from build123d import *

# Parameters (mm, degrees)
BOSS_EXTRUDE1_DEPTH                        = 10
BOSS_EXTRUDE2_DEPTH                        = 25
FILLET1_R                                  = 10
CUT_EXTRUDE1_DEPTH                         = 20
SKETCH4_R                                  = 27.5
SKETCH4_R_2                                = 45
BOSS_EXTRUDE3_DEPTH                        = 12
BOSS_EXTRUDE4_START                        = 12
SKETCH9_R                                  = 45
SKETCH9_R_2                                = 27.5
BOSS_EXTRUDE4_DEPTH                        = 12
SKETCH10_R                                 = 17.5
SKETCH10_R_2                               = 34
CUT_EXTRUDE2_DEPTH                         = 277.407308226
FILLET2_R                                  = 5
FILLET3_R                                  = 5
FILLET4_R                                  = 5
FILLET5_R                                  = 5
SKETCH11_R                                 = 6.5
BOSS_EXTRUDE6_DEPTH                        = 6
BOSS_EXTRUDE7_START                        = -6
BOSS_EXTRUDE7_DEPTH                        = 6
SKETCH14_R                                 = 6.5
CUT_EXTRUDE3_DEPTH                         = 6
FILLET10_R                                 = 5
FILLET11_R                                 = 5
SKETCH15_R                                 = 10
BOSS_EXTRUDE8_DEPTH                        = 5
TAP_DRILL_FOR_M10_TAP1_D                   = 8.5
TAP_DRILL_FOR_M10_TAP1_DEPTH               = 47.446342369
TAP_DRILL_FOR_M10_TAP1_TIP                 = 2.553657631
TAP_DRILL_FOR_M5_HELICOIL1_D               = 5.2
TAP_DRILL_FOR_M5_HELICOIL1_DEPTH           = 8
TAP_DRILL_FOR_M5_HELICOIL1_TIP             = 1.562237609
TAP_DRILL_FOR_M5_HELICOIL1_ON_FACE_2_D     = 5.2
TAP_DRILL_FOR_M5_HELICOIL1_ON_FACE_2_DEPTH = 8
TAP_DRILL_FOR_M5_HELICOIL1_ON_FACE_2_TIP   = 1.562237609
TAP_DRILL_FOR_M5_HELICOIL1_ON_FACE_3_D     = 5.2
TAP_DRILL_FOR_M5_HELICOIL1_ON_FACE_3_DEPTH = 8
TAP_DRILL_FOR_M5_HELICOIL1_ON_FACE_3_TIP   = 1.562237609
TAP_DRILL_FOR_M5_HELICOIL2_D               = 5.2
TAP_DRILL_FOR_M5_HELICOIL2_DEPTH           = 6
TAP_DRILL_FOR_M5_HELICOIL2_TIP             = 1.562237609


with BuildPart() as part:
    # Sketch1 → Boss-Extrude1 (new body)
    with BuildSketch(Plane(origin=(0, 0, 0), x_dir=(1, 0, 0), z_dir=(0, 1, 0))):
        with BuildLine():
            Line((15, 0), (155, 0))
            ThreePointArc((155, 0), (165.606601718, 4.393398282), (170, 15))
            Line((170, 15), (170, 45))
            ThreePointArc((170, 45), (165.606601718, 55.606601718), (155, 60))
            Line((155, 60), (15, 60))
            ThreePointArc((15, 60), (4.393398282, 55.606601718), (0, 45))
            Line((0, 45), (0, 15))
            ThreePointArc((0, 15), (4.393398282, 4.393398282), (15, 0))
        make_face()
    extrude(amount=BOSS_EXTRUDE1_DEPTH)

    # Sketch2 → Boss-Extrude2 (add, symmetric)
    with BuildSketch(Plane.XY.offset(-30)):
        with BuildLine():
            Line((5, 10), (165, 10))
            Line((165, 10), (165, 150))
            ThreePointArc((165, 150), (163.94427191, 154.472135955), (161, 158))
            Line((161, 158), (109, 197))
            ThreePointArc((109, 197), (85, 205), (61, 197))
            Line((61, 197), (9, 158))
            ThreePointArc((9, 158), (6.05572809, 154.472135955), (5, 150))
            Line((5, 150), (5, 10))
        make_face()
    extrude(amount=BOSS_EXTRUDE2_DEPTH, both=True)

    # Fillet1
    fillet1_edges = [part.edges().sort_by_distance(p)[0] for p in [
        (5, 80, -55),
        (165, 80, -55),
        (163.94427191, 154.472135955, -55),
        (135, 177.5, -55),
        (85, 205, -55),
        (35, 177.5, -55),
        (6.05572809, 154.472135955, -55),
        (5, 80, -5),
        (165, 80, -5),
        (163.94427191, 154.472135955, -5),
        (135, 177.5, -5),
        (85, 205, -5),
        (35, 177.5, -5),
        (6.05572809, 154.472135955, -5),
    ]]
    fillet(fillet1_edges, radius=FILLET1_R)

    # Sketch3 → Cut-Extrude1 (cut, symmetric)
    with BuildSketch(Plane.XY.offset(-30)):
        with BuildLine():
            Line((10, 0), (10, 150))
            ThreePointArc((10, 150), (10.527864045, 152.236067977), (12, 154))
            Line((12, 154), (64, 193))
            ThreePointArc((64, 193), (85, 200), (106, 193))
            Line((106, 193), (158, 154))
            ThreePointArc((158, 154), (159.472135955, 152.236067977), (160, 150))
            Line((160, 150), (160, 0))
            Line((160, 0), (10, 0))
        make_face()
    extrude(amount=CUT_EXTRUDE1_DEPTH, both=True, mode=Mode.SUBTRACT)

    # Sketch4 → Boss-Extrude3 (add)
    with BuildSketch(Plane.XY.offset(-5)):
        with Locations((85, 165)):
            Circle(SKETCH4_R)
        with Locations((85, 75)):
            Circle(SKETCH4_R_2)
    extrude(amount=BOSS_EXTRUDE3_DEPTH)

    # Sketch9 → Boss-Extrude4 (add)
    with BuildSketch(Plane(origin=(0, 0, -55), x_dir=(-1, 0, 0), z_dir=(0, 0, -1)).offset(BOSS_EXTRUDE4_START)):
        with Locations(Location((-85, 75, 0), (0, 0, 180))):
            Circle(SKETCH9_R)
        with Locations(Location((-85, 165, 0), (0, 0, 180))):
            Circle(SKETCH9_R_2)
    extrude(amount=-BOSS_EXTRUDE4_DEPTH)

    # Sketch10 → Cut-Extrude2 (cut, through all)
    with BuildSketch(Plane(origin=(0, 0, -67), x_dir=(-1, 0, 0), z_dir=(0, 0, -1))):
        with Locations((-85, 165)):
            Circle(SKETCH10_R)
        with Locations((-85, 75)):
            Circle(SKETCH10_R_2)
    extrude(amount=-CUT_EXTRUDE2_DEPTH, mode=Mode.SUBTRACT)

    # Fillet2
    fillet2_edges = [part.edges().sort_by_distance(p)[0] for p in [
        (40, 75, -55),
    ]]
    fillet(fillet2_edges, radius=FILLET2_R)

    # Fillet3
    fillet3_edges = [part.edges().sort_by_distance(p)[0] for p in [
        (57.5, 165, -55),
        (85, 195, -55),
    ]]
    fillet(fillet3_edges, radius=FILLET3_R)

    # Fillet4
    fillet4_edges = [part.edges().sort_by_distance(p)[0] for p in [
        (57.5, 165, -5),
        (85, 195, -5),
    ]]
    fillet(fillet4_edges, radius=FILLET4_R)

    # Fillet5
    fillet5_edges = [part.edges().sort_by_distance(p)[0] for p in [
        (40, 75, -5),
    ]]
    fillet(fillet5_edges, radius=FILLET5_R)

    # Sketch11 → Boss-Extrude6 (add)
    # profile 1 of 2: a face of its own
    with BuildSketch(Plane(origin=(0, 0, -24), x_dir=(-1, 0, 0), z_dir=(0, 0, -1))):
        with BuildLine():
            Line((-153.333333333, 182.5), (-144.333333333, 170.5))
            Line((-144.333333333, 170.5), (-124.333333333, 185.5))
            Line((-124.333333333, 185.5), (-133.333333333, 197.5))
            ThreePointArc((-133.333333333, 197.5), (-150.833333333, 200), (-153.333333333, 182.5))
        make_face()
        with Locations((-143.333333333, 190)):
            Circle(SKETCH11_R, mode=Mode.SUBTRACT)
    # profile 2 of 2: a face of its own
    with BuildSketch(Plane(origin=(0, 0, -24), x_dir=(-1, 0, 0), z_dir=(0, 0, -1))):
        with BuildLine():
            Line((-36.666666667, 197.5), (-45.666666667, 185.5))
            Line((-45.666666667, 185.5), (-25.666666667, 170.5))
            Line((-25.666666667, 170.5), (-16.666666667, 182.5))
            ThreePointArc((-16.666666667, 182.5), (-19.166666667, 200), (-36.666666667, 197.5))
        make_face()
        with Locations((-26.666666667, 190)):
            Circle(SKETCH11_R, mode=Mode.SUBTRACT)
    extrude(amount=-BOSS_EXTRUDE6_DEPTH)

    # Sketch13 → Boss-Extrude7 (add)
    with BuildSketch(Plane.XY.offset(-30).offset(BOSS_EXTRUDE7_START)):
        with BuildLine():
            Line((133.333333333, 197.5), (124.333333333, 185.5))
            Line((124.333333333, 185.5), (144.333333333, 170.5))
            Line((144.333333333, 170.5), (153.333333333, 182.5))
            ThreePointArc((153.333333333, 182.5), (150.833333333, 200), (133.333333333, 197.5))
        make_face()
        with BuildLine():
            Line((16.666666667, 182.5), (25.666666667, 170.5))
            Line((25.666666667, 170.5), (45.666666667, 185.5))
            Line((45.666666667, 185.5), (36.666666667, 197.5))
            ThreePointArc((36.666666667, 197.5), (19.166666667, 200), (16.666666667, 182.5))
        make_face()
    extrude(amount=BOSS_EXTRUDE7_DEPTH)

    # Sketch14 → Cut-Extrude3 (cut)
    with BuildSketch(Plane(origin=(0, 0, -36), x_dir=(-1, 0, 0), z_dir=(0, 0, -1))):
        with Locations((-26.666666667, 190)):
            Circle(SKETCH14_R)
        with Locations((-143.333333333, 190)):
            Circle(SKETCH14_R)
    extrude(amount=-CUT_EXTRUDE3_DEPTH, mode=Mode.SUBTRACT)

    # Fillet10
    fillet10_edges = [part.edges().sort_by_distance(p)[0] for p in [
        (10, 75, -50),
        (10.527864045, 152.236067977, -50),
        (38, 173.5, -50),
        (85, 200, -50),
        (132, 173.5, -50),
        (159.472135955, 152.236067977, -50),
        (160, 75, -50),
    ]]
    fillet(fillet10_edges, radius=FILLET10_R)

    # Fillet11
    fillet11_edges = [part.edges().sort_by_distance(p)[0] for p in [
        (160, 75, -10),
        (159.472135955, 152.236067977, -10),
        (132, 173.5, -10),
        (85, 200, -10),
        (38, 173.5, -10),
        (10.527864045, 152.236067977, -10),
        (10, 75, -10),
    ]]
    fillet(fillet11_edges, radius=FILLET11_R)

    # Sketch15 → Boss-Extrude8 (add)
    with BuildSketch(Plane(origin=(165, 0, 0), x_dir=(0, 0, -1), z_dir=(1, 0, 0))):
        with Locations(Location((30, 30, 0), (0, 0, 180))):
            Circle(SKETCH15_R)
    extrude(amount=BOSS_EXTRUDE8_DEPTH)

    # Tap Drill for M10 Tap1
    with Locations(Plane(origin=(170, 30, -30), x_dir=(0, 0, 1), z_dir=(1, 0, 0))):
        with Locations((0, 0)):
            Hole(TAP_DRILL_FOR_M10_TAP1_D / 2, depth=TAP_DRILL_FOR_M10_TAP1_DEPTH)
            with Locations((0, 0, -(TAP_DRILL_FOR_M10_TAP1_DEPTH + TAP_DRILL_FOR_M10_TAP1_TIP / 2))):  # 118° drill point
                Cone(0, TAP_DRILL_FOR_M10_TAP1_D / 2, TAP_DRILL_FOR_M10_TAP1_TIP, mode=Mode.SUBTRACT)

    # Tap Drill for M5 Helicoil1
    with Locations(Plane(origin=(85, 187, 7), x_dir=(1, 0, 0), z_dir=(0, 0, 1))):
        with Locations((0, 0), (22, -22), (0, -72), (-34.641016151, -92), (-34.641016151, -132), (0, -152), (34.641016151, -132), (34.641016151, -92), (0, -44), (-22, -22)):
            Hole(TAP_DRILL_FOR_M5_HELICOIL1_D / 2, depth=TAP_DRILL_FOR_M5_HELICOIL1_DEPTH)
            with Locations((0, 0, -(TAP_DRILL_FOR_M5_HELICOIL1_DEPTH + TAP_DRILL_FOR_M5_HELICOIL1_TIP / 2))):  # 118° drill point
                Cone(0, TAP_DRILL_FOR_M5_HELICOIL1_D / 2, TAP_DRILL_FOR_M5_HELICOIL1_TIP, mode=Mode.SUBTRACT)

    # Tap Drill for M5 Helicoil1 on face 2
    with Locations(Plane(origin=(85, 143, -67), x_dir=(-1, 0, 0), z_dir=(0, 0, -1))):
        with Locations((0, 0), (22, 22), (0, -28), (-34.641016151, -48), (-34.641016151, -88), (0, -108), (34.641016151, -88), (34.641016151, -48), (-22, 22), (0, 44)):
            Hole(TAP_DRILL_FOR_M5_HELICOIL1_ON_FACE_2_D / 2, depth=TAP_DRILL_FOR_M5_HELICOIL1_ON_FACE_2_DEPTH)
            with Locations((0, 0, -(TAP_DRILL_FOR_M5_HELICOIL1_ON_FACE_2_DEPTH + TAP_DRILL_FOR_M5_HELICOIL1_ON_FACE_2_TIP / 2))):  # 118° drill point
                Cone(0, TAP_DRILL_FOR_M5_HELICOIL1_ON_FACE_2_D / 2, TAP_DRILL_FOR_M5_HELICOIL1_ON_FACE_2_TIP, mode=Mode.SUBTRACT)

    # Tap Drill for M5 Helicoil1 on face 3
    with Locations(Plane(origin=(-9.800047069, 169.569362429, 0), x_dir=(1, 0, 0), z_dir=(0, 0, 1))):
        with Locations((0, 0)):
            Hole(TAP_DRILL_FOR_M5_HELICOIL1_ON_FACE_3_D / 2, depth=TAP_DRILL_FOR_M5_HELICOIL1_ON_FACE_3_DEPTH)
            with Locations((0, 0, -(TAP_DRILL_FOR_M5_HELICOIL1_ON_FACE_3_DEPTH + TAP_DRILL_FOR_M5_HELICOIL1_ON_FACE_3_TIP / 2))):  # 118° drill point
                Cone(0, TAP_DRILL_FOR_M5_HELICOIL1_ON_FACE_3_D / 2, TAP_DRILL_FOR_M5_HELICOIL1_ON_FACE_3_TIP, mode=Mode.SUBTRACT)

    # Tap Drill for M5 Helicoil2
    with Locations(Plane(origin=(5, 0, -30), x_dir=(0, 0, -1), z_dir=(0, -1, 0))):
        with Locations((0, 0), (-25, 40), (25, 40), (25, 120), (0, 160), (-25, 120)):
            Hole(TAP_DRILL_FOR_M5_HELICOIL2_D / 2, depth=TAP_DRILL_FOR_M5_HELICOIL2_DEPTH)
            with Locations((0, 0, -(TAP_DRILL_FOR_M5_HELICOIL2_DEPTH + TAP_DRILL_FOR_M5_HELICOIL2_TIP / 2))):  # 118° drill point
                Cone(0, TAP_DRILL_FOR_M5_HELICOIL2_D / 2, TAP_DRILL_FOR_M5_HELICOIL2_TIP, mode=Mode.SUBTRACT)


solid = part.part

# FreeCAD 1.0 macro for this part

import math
import FreeCAD as App
import Part
import Sketcher

V = App.Vector


def edges_at(feature, points):
    """Names of the edges that pass closest to the given points."""
    edges = feature.Shape.Edges
    near = lambda p: min(range(len(edges)), key=lambda i: edges[i].distToShape(Part.Vertex(*p))[0])
    return sorted({f"Edge{near(p) + 1}" for p in points})

doc = App.newDocument("Part")
body = doc.addObject("PartDesign::Body", "Body")

# Sketch on XZ plane
sketch1 = body.newObject("Sketcher::SketchObject", "Sketch")
sketch1.AttachmentSupport = (doc.getObject("XZ_Plane"), [""])
sketch1.MapMode = "FlatFace"
sketch1.addGeometry([
    Part.LineSegment(V(15, 0, 0), V(155, 0, 0)),  # 0
    Part.ArcOfCircle(Part.Circle(V(155, -15, 0), V(0, 0, 1), 15), math.radians(0), math.radians(90)),  # 1
    Part.LineSegment(V(170, -15, 0), V(170, -45, 0)),  # 2
    Part.ArcOfCircle(Part.Circle(V(155, -45, 0), V(0, 0, 1), 15), math.radians(-90), math.radians(0)),  # 3
    Part.LineSegment(V(155, -60, 0), V(15, -60, 0)),  # 4
    Part.ArcOfCircle(Part.Circle(V(15, -45, 0), V(0, 0, 1), 15), math.radians(180), math.radians(270)),  # 5
    Part.LineSegment(V(0, -45, 0), V(0, -15, 0)),  # 6
    Part.ArcOfCircle(Part.Circle(V(15, -15, 0), V(0, 0, 1), 15), math.radians(90), math.radians(180)),  # 7
], False)
sketch1.addConstraint([
    Sketcher.Constraint("Tangent", 0, 2, 1, 2),
    Sketcher.Constraint("Tangent", 1, 1, 2, 1),
    Sketcher.Constraint("Tangent", 2, 2, 3, 2),
    Sketcher.Constraint("Tangent", 3, 1, 4, 1),
    Sketcher.Constraint("Tangent", 4, 2, 5, 2),
    Sketcher.Constraint("Tangent", 5, 1, 6, 1),
    Sketcher.Constraint("Tangent", 6, 2, 7, 2),
    Sketcher.Constraint("Tangent", 7, 1, 0, 1),
    Sketcher.Constraint("Horizontal", 0),
    Sketcher.Constraint("Vertical", 2),
    Sketcher.Constraint("Horizontal", 4),
    Sketcher.Constraint("Vertical", 6),
    Sketcher.Constraint("Equal", 1, 3),
    Sketcher.Constraint("Equal", 3, 5),
    Sketcher.Constraint("Equal", 5, 7),
    Sketcher.Constraint("PointOnObject", 0, 2, -1),
    Sketcher.Constraint("PointOnObject", 5, 1, -2),
    Sketcher.Constraint("Radius", 1, 15.0),
    Sketcher.Constraint("DistanceX", 0, 1, 0, 2, 140.0),
    Sketcher.Constraint("DistanceY", 2, 2, 2, 1, 30.0),
])
pad1 = body.newObject("PartDesign::Pad", "Pad")
pad1.Profile = sketch1
pad1.Length = 10
pad1.Reversed = True

# Sketch on XY plane
sketch2 = body.newObject("Sketcher::SketchObject", "Sketch001")
sketch2.AttachmentSupport = (doc.getObject("XY_Plane"), [""])
sketch2.MapMode = "FlatFace"
sketch2.AttachmentOffset = App.Placement(V(0, 0, -30), App.Rotation())
sketch2.addGeometry([
    Part.LineSegment(V(5, 10, 0), V(165, 10, 0)),  # 0
    Part.LineSegment(V(165, 10, 0), V(165, 150, 0)),  # 1
    Part.ArcOfCircle(Part.Circle(V(155, 150, 0), V(0, 0, 1), 10), math.radians(0), math.radians(53.130102)),  # 2
    Part.LineSegment(V(161, 158, 0), V(109, 197, 0)),  # 3
    Part.ArcOfCircle(Part.Circle(V(85, 165, 0), V(0, 0, 1), 40), math.radians(53.130102), math.radians(126.869898)),  # 4
    Part.LineSegment(V(61, 197, 0), V(9, 158, 0)),  # 5
    Part.ArcOfCircle(Part.Circle(V(15, 150, 0), V(0, 0, 1), 10), math.radians(126.869898), math.radians(180)),  # 6
    Part.LineSegment(V(5, 150, 0), V(5, 10, 0)),  # 7
], False)
sketch2.addConstraint([
    Sketcher.Constraint("Coincident", 0, 2, 1, 1),
    Sketcher.Constraint("Tangent", 1, 2, 2, 1),
    Sketcher.Constraint("Tangent", 2, 2, 3, 1),
    Sketcher.Constraint("Tangent", 3, 2, 4, 1),
    Sketcher.Constraint("Tangent", 4, 2, 5, 1),
    Sketcher.Constraint("Tangent", 5, 2, 6, 1),
    Sketcher.Constraint("Tangent", 6, 2, 7, 1),
    Sketcher.Constraint("Coincident", 7, 2, 0, 1),
    Sketcher.Constraint("Horizontal", 0),
    Sketcher.Constraint("Vertical", 1),
    Sketcher.Constraint("Vertical", 7),
    Sketcher.Constraint("Equal", 2, 6),
    Sketcher.Constraint("Horizontal", 2, 3, 6, 3),
    Sketcher.Constraint("Horizontal", 3, 2, 4, 2),
    Sketcher.Constraint("Radius", 2, 10.0),
    Sketcher.Constraint("Radius", 4, 40.0),
    Sketcher.Constraint("DistanceX", 0, 1, 0, 2, 160.0),
    Sketcher.Constraint("DistanceY", 1, 1, 1, 2, 140.0),
    Sketcher.Constraint("Distance", 3, 65.0),
    Sketcher.Constraint("DistanceX", -1, 1, 2, 3, 155.0),
    Sketcher.Constraint("DistanceY", -1, 1, 2, 3, 150.0),
])
pad2 = body.newObject("PartDesign::Pad", "Pad001")
pad2.Profile = sketch2
pad2.Length = 50
pad2.Midplane = True
doc.recompute()

fillet = body.newObject("PartDesign::Fillet", "Fillet")
fillet.Base = (pad2, edges_at(pad2, [
    (5, 80, -55),
    (165, 80, -55),
    (163.944, 154.472, -55),
    (135, 177.5, -55),
    (85, 205, -55),
    (35, 177.5, -55),
    (6.056, 154.472, -55),
    (5, 80, -5),
    (165, 80, -5),
    (163.944, 154.472, -5),
    (135, 177.5, -5),
    (85, 205, -5),
    (35, 177.5, -5),
    (6.056, 154.472, -5),
]))
fillet.Radius = 10

# Sketch on XY plane
sketch3 = body.newObject("Sketcher::SketchObject", "Sketch002")
sketch3.AttachmentSupport = (doc.getObject("XY_Plane"), [""])
sketch3.MapMode = "FlatFace"
sketch3.AttachmentOffset = App.Placement(V(0, 0, -30), App.Rotation())
sketch3.addGeometry([
    Part.LineSegment(V(10, 150, 0), V(10, 0, 0)),  # 0
    Part.LineSegment(V(10, 0, 0), V(160, 0, 0)),  # 1
    Part.LineSegment(V(160, 0, 0), V(160, 150, 0)),  # 2
    Part.ArcOfCircle(Part.Circle(V(155, 150, 0), V(0, 0, 1), 5), math.radians(0), math.radians(53.130102)),  # 3
    Part.LineSegment(V(158, 154, 0), V(106, 193, 0)),  # 4
    Part.ArcOfCircle(Part.Circle(V(85, 165, 0), V(0, 0, 1), 35), math.radians(53.130102), math.radians(126.869898)),  # 5
    Part.LineSegment(V(64, 193, 0), V(12, 154, 0)),  # 6
    Part.ArcOfCircle(Part.Circle(V(15, 150, 0), V(0, 0, 1), 5), math.radians(126.869898), math.radians(180)),  # 7
], False)
sketch3.addConstraint([
    Sketcher.Constraint("Coincident", 0, 2, 1, 1),
    Sketcher.Constraint("Coincident", 1, 2, 2, 1),
    Sketcher.Constraint("Tangent", 2, 2, 3, 1),
    Sketcher.Constraint("Tangent", 3, 2, 4, 1),
    Sketcher.Constraint("Tangent", 4, 2, 5, 1),
    Sketcher.Constraint("Tangent", 5, 2, 6, 1),
    Sketcher.Constraint("Tangent", 6, 2, 7, 1),
    Sketcher.Constraint("Tangent", 7, 2, 0, 1),
    Sketcher.Constraint("Vertical", 0),
    Sketcher.Constraint("Horizontal", 1),
    Sketcher.Constraint("Vertical", 2),
    Sketcher.Constraint("Equal", 3, 7),
    Sketcher.Constraint("PointOnObject", 0, 2, -1),
    Sketcher.Constraint("Horizontal", 3, 3, 7, 3),
    Sketcher.Constraint("Horizontal", 4, 2, 5, 2),
    Sketcher.Constraint("Equal", 1, 0),
    Sketcher.Constraint("Radius", 3, 5.0),
    Sketcher.Constraint("Radius", 5, 35.0),
    Sketcher.Constraint("DistanceX", 1, 1, 1, 2, 150.0),
    Sketcher.Constraint("Distance", 4, 65.0),
    Sketcher.Constraint("DistanceX", -1, 1, 3, 3, 155.0),
])
pocket1 = body.newObject("PartDesign::Pocket", "Pocket")
pocket1.Profile = sketch3
pocket1.Length = 40
pocket1.Midplane = True

# Sketch on XY plane
sketch4 = body.newObject("Sketcher::SketchObject", "Sketch003")
sketch4.AttachmentSupport = (doc.getObject("XY_Plane"), [""])
sketch4.MapMode = "FlatFace"
sketch4.AttachmentOffset = App.Placement(V(0, 0, -5), App.Rotation())
sketch4.addGeometry([
    Part.Circle(V(85, 165, 0), V(0, 0, 1), 27.5),
    Part.Circle(V(85, 75, 0), V(0, 0, 1), 45),
], False)
sketch4.addConstraint([
    Sketcher.Constraint("Vertical", 0, 3, 1, 3),
    Sketcher.Constraint("Diameter", 0, 55.0),
    Sketcher.Constraint("Diameter", 1, 90.0),
    Sketcher.Constraint("DistanceX", -1, 1, 0, 3, 85.0),
    Sketcher.Constraint("DistanceY", -1, 1, 0, 3, 165.0),
    Sketcher.Constraint("DistanceY", -1, 1, 1, 3, 75.0),
])
pad3 = body.newObject("PartDesign::Pad", "Pad002")
pad3.Profile = sketch4
pad3.Length = 12

# Sketch on XY plane
sketch5 = body.newObject("Sketcher::SketchObject", "Sketch004")
sketch5.AttachmentSupport = (doc.getObject("XY_Plane"), [""])
sketch5.MapMode = "FlatFace"
sketch5.AttachmentOffset = App.Placement(V(0, 0, -67), App.Rotation())
sketch5.addGeometry([
    Part.Circle(V(85, 75, 0), V(0, 0, 1), 45),
    Part.Circle(V(85, 165, 0), V(0, 0, 1), 27.5),
], False)
sketch5.addConstraint([
    Sketcher.Constraint("Vertical", 0, 3, 1, 3),
    Sketcher.Constraint("Diameter", 0, 90.0),
    Sketcher.Constraint("Diameter", 1, 55.0),
    Sketcher.Constraint("DistanceX", -1, 1, 0, 3, 85.0),
    Sketcher.Constraint("DistanceY", -1, 1, 0, 3, 75.0),
    Sketcher.Constraint("DistanceY", -1, 1, 1, 3, 165.0),
])
pad4 = body.newObject("PartDesign::Pad", "Pad003")
pad4.Profile = sketch5
pad4.Length = 12

# Sketch on XY plane
sketch6 = body.newObject("Sketcher::SketchObject", "Sketch005")
sketch6.AttachmentSupport = (doc.getObject("XY_Plane"), [""])
sketch6.MapMode = "FlatFace"
sketch6.AttachmentOffset = App.Placement(V(0, 0, -67), App.Rotation())
sketch6.addGeometry([
    Part.Circle(V(85, 165, 0), V(0, 0, 1), 17.5),
    Part.Circle(V(85, 75, 0), V(0, 0, 1), 34),
], False)
sketch6.addConstraint([
    Sketcher.Constraint("Vertical", 0, 3, 1, 3),
    Sketcher.Constraint("Diameter", 0, 35.0),
    Sketcher.Constraint("Diameter", 1, 68.0),
    Sketcher.Constraint("DistanceX", -1, 1, 0, 3, 85.0),
    Sketcher.Constraint("DistanceY", -1, 1, 0, 3, 165.0),
    Sketcher.Constraint("DistanceY", -1, 1, 1, 3, 75.0),
])
pocket2 = body.newObject("PartDesign::Pocket", "Pocket001")
pocket2.Profile = sketch6
pocket2.Type = "ThroughAll"
pocket2.Reversed = True
doc.recompute()

fillet2 = body.newObject("PartDesign::Fillet", "Fillet001")
fillet2.Base = (pocket2, edges_at(pocket2, [(40, 75, -55)]))
fillet2.Radius = 5
doc.recompute()

fillet3 = body.newObject("PartDesign::Fillet", "Fillet002")
fillet3.Base = (fillet2, edges_at(fillet2, [(57.5, 165, -55), (85, 195, -55)]))
fillet3.Radius = 5
doc.recompute()

fillet4 = body.newObject("PartDesign::Fillet", "Fillet003")
fillet4.Base = (fillet3, edges_at(fillet3, [(57.5, 165, -5), (85, 195, -5)]))
fillet4.Radius = 5
doc.recompute()

fillet5 = body.newObject("PartDesign::Fillet", "Fillet004")
fillet5.Base = (fillet4, edges_at(fillet4, [(40, 75, -5)]))
fillet5.Radius = 5

# Sketch on XY plane
sketch7 = body.newObject("Sketcher::SketchObject", "Sketch006")
sketch7.AttachmentSupport = (doc.getObject("XY_Plane"), [""])
sketch7.MapMode = "FlatFace"
sketch7.AttachmentOffset = App.Placement(V(0, 0, -24), App.Rotation())
sketch7.addGeometry([
    Part.LineSegment(V(153.333333, 182.5, 0), V(144.333333, 170.5, 0)),  # 0
    Part.LineSegment(V(144.333333, 170.5, 0), V(124.333333, 185.5, 0)),  # 1
    Part.LineSegment(V(124.333333, 185.5, 0), V(133.333333, 197.5, 0)),  # 2
    Part.ArcOfCircle(Part.Circle(V(143.333333, 190, 0), V(0, 0, 1), 12.5), math.radians(-36.869898), math.radians(143.130102)),  # 3
    Part.Circle(V(143.333333, 190, 0), V(0, 0, 1), 6.5),  # 4
    Part.LineSegment(V(36.666667, 197.5, 0), V(45.666667, 185.5, 0)),  # 5
    Part.LineSegment(V(45.666667, 185.5, 0), V(25.666667, 170.5, 0)),  # 6
    Part.LineSegment(V(25.666667, 170.5, 0), V(16.666667, 182.5, 0)),  # 7
    Part.ArcOfCircle(Part.Circle(V(26.666667, 190, 0), V(0, 0, 1), 12.5), math.radians(36.869898), math.radians(216.869898)),  # 8
    Part.Circle(V(26.666667, 190, 0), V(0, 0, 1), 6.5),  # 9
], False)
sketch7.addConstraint([
    Sketcher.Constraint("Coincident", 0, 2, 1, 1),
    Sketcher.Constraint("Coincident", 1, 2, 2, 1),
    Sketcher.Constraint("Tangent", 2, 2, 3, 2),
    Sketcher.Constraint("Tangent", 3, 1, 0, 1),
    Sketcher.Constraint("Coincident", 5, 2, 6, 1),
    Sketcher.Constraint("Coincident", 6, 2, 7, 1),
    Sketcher.Constraint("Tangent", 7, 2, 8, 2),
    Sketcher.Constraint("Tangent", 8, 1, 5, 1),
    Sketcher.Constraint("Coincident", 4, 3, 3, 3),
    Sketcher.Constraint("Coincident", 9, 3, 8, 3),
    Sketcher.Constraint("Equal", 3, 8),
    Sketcher.Constraint("Equal", 4, 9),
    Sketcher.Constraint("Perpendicular", 0, 1),
    Sketcher.Constraint("Perpendicular", 1, 2),
    Sketcher.Constraint("Perpendicular", 5, 6),
    Sketcher.Constraint("Perpendicular", 6, 7),
    Sketcher.Constraint("Horizontal", 4, 3, 8, 3),
    Sketcher.Constraint("Horizontal", 1, 2, 5, 2),
    Sketcher.Constraint("Horizontal", 0, 2, 6, 2),
    Sketcher.Constraint("Diameter", 4, 13.0),
    Sketcher.Constraint("Radius", 3, 12.5),
    Sketcher.Constraint("Distance", 0, 15.0),
    Sketcher.Constraint("DistanceY", -1, 1, 3, 3, 190.0),
    Sketcher.Constraint("DistanceX", 3, 3, 0, 2, 1.0),
    Sketcher.Constraint("DistanceX", -1, 1, 3, 3, 143.333333),
    Sketcher.Constraint("DistanceX", -1, 1, 8, 3, 26.666667),
])
pad5 = body.newObject("PartDesign::Pad", "Pad004")
pad5.Profile = sketch7
pad5.Length = 6

# Sketch on XY plane
sketch8 = body.newObject("Sketcher::SketchObject", "Sketch007")
sketch8.AttachmentSupport = (doc.getObject("XY_Plane"), [""])
sketch8.MapMode = "FlatFace"
sketch8.AttachmentOffset = App.Placement(V(0, 0, -36), App.Rotation())
sketch8.addGeometry([
    Part.LineSegment(V(133.333333, 197.5, 0), V(124.333333, 185.5, 0)),  # 0
    Part.LineSegment(V(124.333333, 185.5, 0), V(144.333333, 170.5, 0)),  # 1
    Part.LineSegment(V(144.333333, 170.5, 0), V(153.333333, 182.5, 0)),  # 2
    Part.ArcOfCircle(Part.Circle(V(143.333333, 190, 0), V(0, 0, 1), 12.5), math.radians(-36.869898), math.radians(143.130102)),  # 3
    Part.LineSegment(V(16.666667, 182.5, 0), V(25.666667, 170.5, 0)),  # 4
    Part.LineSegment(V(25.666667, 170.5, 0), V(45.666667, 185.5, 0)),  # 5
    Part.LineSegment(V(45.666667, 185.5, 0), V(36.666667, 197.5, 0)),  # 6
    Part.ArcOfCircle(Part.Circle(V(26.666667, 190, 0), V(0, 0, 1), 12.5), math.radians(36.869898), math.radians(216.869898)),  # 7
], False)
sketch8.addConstraint([
    Sketcher.Constraint("Coincident", 0, 2, 1, 1),
    Sketcher.Constraint("Coincident", 1, 2, 2, 1),
    Sketcher.Constraint("Tangent", 2, 2, 3, 1),
    Sketcher.Constraint("Tangent", 3, 2, 0, 1),
    Sketcher.Constraint("Coincident", 4, 2, 5, 1),
    Sketcher.Constraint("Coincident", 5, 2, 6, 1),
    Sketcher.Constraint("Tangent", 6, 2, 7, 1),
    Sketcher.Constraint("Tangent", 7, 2, 4, 1),
    Sketcher.Constraint("Equal", 3, 7),
    Sketcher.Constraint("Perpendicular", 0, 1),
    Sketcher.Constraint("Perpendicular", 1, 2),
    Sketcher.Constraint("Perpendicular", 4, 5),
    Sketcher.Constraint("Perpendicular", 5, 6),
    Sketcher.Constraint("Horizontal", 3, 3, 7, 3),
    Sketcher.Constraint("Horizontal", 1, 2, 4, 2),
    Sketcher.Constraint("Horizontal", 0, 2, 5, 2),
    Sketcher.Constraint("Radius", 3, 12.5),
    Sketcher.Constraint("Distance", 0, 15.0),
    Sketcher.Constraint("DistanceY", -1, 1, 3, 3, 190.0),
    Sketcher.Constraint("DistanceX", 0, 2, 3, 3, 19.0),
    Sketcher.Constraint("DistanceX", -1, 1, 3, 3, 143.333333),
    Sketcher.Constraint("DistanceX", -1, 1, 7, 3, 26.666667),
])
pad6 = body.newObject("PartDesign::Pad", "Pad005")
pad6.Profile = sketch8
pad6.Length = 6

# Sketch on XY plane
sketch9 = body.newObject("Sketcher::SketchObject", "Sketch008")
sketch9.AttachmentSupport = (doc.getObject("XY_Plane"), [""])
sketch9.MapMode = "FlatFace"
sketch9.AttachmentOffset = App.Placement(V(0, 0, -36), App.Rotation())
sketch9.addGeometry([
    Part.Circle(V(26.666667, 190, 0), V(0, 0, 1), 6.5),
    Part.Circle(V(143.333333, 190, 0), V(0, 0, 1), 6.5),
], False)
sketch9.addConstraint([
    Sketcher.Constraint("Equal", 0, 1),
    Sketcher.Constraint("Horizontal", 0, 3, 1, 3),
    Sketcher.Constraint("Diameter", 0, 13.0),
    Sketcher.Constraint("DistanceY", -1, 1, 0, 3, 190.0),
    Sketcher.Constraint("DistanceX", -1, 1, 0, 3, 26.666667),
    Sketcher.Constraint("DistanceX", -1, 1, 1, 3, 143.333333),
])
pocket3 = body.newObject("PartDesign::Pocket", "Pocket002")
pocket3.Profile = sketch9
pocket3.Length = 6
pocket3.Reversed = True
doc.recompute()

fillet6 = body.newObject("PartDesign::Fillet", "Fillet005")
fillet6.Base = (pocket3, edges_at(pocket3, [
    (10, 75, -50),
    (10.528, 152.236, -50),
    (38, 173.5, -50),
    (85, 200, -50),
    (132, 173.5, -50),
    (159.472, 152.236, -50),
    (160, 75, -50),
]))
fillet6.Radius = 5
doc.recompute()

fillet7 = body.newObject("PartDesign::Fillet", "Fillet006")
fillet7.Base = (fillet6, edges_at(fillet6, [
    (160, 75, -10),
    (159.472, 152.236, -10),
    (132, 173.5, -10),
    (85, 200, -10),
    (38, 173.5, -10),
    (10.528, 152.236, -10),
    (10, 75, -10),
]))
fillet7.Radius = 5

# Sketch on YZ plane
sketch10 = body.newObject("Sketcher::SketchObject", "Sketch009")
sketch10.AttachmentSupport = (doc.getObject("YZ_Plane"), [""])
sketch10.MapMode = "FlatFace"
sketch10.AttachmentOffset = App.Placement(V(0, 0, 165), App.Rotation())
sketch10.addGeometry(Part.Circle(V(30, -30, 0), V(0, 0, 1), 10), False)
sketch10.addConstraint([
    Sketcher.Constraint("Diameter", 0, 20.0),
    Sketcher.Constraint("DistanceX", -1, 1, 0, 3, 30.0),
    Sketcher.Constraint("DistanceY", 0, 3, -1, 1, 30.0),
])
pad7 = body.newObject("PartDesign::Pad", "Pad006")
pad7.Profile = sketch10
pad7.Length = 5

# Sketch on YZ plane
sketch11 = body.newObject("Sketcher::SketchObject", "Sketch010")
sketch11.AttachmentSupport = (doc.getObject("YZ_Plane"), [""])
sketch11.MapMode = "FlatFace"
sketch11.AttachmentOffset = App.Placement(V(0, 0, 170), App.Rotation())
sketch11.addGeometry(Part.Circle(V(30, -30, 0), V(0, 0, 1), 4.25), False)
sketch11.addConstraint([
    Sketcher.Constraint("Diameter", 0, 8.5),
    Sketcher.Constraint("DistanceX", -1, 1, 0, 3, 30.0),
    Sketcher.Constraint("DistanceY", 0, 3, -1, 1, 30.0),
])
doc.recompute()
hole = body.newObject("PartDesign::Hole", "Hole")
hole.Profile = sketch11
hole.ThreadType = "None"
hole.Diameter = 8.5
hole.DepthType = "Dimension"
hole.Depth = 47.446342
hole.DrillPoint = "Angled"
hole.DrillPointAngle = 118

# Sketch on XY plane
sketch12 = body.newObject("Sketcher::SketchObject", "Sketch011")
sketch12.AttachmentSupport = (doc.getObject("XY_Plane"), [""])
sketch12.MapMode = "FlatFace"
sketch12.AttachmentOffset = App.Placement(V(0, 0, 7), App.Rotation())
sketch12.addGeometry([
    Part.Circle(V(85, 187, 0), V(0, 0, 1), 2.6),  # 0
    Part.Circle(V(107, 165, 0), V(0, 0, 1), 2.6),  # 1
    Part.Circle(V(85, 115, 0), V(0, 0, 1), 2.6),  # 2
    Part.Circle(V(50.358984, 95, 0), V(0, 0, 1), 2.6),  # 3
    Part.Circle(V(50.358984, 55, 0), V(0, 0, 1), 2.6),  # 4
    Part.Circle(V(85, 35, 0), V(0, 0, 1), 2.6),  # 5
    Part.Circle(V(119.641016, 55, 0), V(0, 0, 1), 2.6),  # 6
    Part.Circle(V(119.641016, 95, 0), V(0, 0, 1), 2.6),  # 7
    Part.Circle(V(85, 143, 0), V(0, 0, 1), 2.6),  # 8
    Part.Circle(V(63, 165, 0), V(0, 0, 1), 2.6),  # 9
], False)
sketch12.addConstraint([
    Sketcher.Constraint("Equal", 0, 1),
    Sketcher.Constraint("Equal", 1, 2),
    Sketcher.Constraint("Equal", 2, 3),
    Sketcher.Constraint("Equal", 3, 4),
    Sketcher.Constraint("Equal", 4, 5),
    Sketcher.Constraint("Equal", 5, 6),
    Sketcher.Constraint("Equal", 6, 7),
    Sketcher.Constraint("Equal", 7, 8),
    Sketcher.Constraint("Equal", 8, 9),
    Sketcher.Constraint("Horizontal", 4, 3, 6, 3),
    Sketcher.Constraint("Horizontal", 3, 3, 7, 3),
    Sketcher.Constraint("Horizontal", 1, 3, 9, 3),
    Sketcher.Constraint("Vertical", 0, 3, 2, 3),
    Sketcher.Constraint("Vertical", 3, 3, 4, 3),
    Sketcher.Constraint("Vertical", 2, 3, 5, 3),
    Sketcher.Constraint("Vertical", 6, 3, 7, 3),
    Sketcher.Constraint("Vertical", 5, 3, 8, 3),
    Sketcher.Constraint("Diameter", 0, 5.2),
    Sketcher.Constraint("DistanceX", -1, 1, 0, 3, 85.0),
    Sketcher.Constraint("DistanceY", -1, 1, 0, 3, 187.0),
    Sketcher.Constraint("DistanceX", -1, 1, 1, 3, 107.0),
    Sketcher.Constraint("DistanceY", -1, 1, 1, 3, 165.0),
    Sketcher.Constraint("DistanceY", -1, 1, 2, 3, 115.0),
    Sketcher.Constraint("DistanceY", -1, 1, 3, 3, 95.0),
    Sketcher.Constraint("DistanceY", -1, 1, 4, 3, 55.0),
    Sketcher.Constraint("DistanceY", -1, 1, 5, 3, 35.0),
    Sketcher.Constraint("DistanceY", -1, 1, 8, 3, 143.0),
    Sketcher.Constraint("DistanceX", -1, 1, 9, 3, 63.0),
    Sketcher.Constraint("DistanceX", -1, 1, 3, 3, 50.358984),
    Sketcher.Constraint("DistanceX", -1, 1, 6, 3, 119.641016),
])
doc.recompute()
hole2 = body.newObject("PartDesign::Hole", "Hole001")
hole2.Profile = sketch12
hole2.ThreadType = "None"
hole2.Diameter = 5.2
hole2.DepthType = "Dimension"
hole2.Depth = 8
hole2.DrillPoint = "Angled"
hole2.DrillPointAngle = 118

# Sketch on XY plane
sketch13 = body.newObject("Sketcher::SketchObject", "Sketch012")
sketch13.AttachmentSupport = (doc.getObject("XY_Plane"), [""])
sketch13.MapMode = "FlatFace"
sketch13.AttachmentOffset = App.Placement(V(0, 0, -67), App.Rotation())
sketch13.addGeometry([
    Part.Circle(V(85, 143, 0), V(0, 0, 1), 2.6),  # 0
    Part.Circle(V(63, 165, 0), V(0, 0, 1), 2.6),  # 1
    Part.Circle(V(85, 115, 0), V(0, 0, 1), 2.6),  # 2
    Part.Circle(V(119.641016, 95, 0), V(0, 0, 1), 2.6),  # 3
    Part.Circle(V(119.641016, 55, 0), V(0, 0, 1), 2.6),  # 4
    Part.Circle(V(85, 35, 0), V(0, 0, 1), 2.6),  # 5
    Part.Circle(V(50.358984, 55, 0), V(0, 0, 1), 2.6),  # 6
    Part.Circle(V(50.358984, 95, 0), V(0, 0, 1), 2.6),  # 7
    Part.Circle(V(107, 165, 0), V(0, 0, 1), 2.6),  # 8
    Part.Circle(V(85, 187, 0), V(0, 0, 1), 2.6),  # 9
], False)
sketch13.addConstraint([
    Sketcher.Constraint("Equal", 0, 1),
    Sketcher.Constraint("Equal", 1, 2),
    Sketcher.Constraint("Equal", 2, 3),
    Sketcher.Constraint("Equal", 3, 4),
    Sketcher.Constraint("Equal", 4, 5),
    Sketcher.Constraint("Equal", 5, 6),
    Sketcher.Constraint("Equal", 6, 7),
    Sketcher.Constraint("Equal", 7, 8),
    Sketcher.Constraint("Equal", 8, 9),
    Sketcher.Constraint("Horizontal", 4, 3, 6, 3),
    Sketcher.Constraint("Horizontal", 3, 3, 7, 3),
    Sketcher.Constraint("Horizontal", 1, 3, 8, 3),
    Sketcher.Constraint("Vertical", 0, 3, 2, 3),
    Sketcher.Constraint("Vertical", 3, 3, 4, 3),
    Sketcher.Constraint("Vertical", 2, 3, 5, 3),
    Sketcher.Constraint("Vertical", 6, 3, 7, 3),
    Sketcher.Constraint("Vertical", 5, 3, 9, 3),
    Sketcher.Constraint("Diameter", 0, 5.2),
    Sketcher.Constraint("DistanceX", -1, 1, 0, 3, 85.0),
    Sketcher.Constraint("DistanceY", -1, 1, 0, 3, 143.0),
    Sketcher.Constraint("DistanceX", -1, 1, 1, 3, 63.0),
    Sketcher.Constraint("DistanceY", -1, 1, 1, 3, 165.0),
    Sketcher.Constraint("DistanceY", -1, 1, 2, 3, 115.0),
    Sketcher.Constraint("DistanceY", -1, 1, 3, 3, 95.0),
    Sketcher.Constraint("DistanceY", -1, 1, 4, 3, 55.0),
    Sketcher.Constraint("DistanceY", -1, 1, 5, 3, 35.0),
    Sketcher.Constraint("DistanceX", -1, 1, 8, 3, 107.0),
    Sketcher.Constraint("DistanceY", -1, 1, 9, 3, 187.0),
    Sketcher.Constraint("DistanceX", -1, 1, 3, 3, 119.641016),
    Sketcher.Constraint("DistanceX", -1, 1, 6, 3, 50.358984),
])
doc.recompute()
hole3 = body.newObject("PartDesign::Hole", "Hole002")
hole3.Profile = sketch13
hole3.ThreadType = "None"
hole3.Diameter = 5.2
hole3.DepthType = "Dimension"
hole3.Depth = 8
hole3.DrillPoint = "Angled"
hole3.DrillPointAngle = 118
hole3.Reversed = True

# Sketch on XY plane
sketch14 = body.newObject("Sketcher::SketchObject", "Sketch013")
sketch14.AttachmentSupport = (doc.getObject("XY_Plane"), [""])
sketch14.MapMode = "FlatFace"
sketch14.addGeometry(Part.Circle(V(-9.800047, 169.569362, 0), V(0, 0, 1), 2.6), False)
sketch14.addConstraint([
    Sketcher.Constraint("Diameter", 0, 5.2),
    Sketcher.Constraint("DistanceX", 0, 3, -1, 1, 9.800047),
    Sketcher.Constraint("DistanceY", -1, 1, 0, 3, 169.569362),
])
doc.recompute()
hole4 = body.newObject("PartDesign::Hole", "Hole003")
hole4.Profile = sketch14
hole4.ThreadType = "None"
hole4.Diameter = 5.2
hole4.DepthType = "Dimension"
hole4.Depth = 8
hole4.DrillPoint = "Angled"
hole4.DrillPointAngle = 118

# Sketch on XZ plane
sketch15 = body.newObject("Sketcher::SketchObject", "Sketch014")
sketch15.AttachmentSupport = (doc.getObject("XZ_Plane"), [""])
sketch15.MapMode = "FlatFace"
sketch15.addGeometry([
    Part.Circle(V(5, -30, 0), V(0, 0, 1), 2.6),  # 0
    Part.Circle(V(45, -5, 0), V(0, 0, 1), 2.6),  # 1
    Part.Circle(V(45, -55, 0), V(0, 0, 1), 2.6),  # 2
    Part.Circle(V(125, -55, 0), V(0, 0, 1), 2.6),  # 3
    Part.Circle(V(165, -30, 0), V(0, 0, 1), 2.6),  # 4
    Part.Circle(V(125, -5, 0), V(0, 0, 1), 2.6),  # 5
], False)
sketch15.addConstraint([
    Sketcher.Constraint("Equal", 0, 1),
    Sketcher.Constraint("Equal", 1, 2),
    Sketcher.Constraint("Equal", 2, 3),
    Sketcher.Constraint("Equal", 3, 4),
    Sketcher.Constraint("Equal", 4, 5),
    Sketcher.Constraint("Horizontal", 2, 3, 3, 3),
    Sketcher.Constraint("Horizontal", 0, 3, 4, 3),
    Sketcher.Constraint("Horizontal", 1, 3, 5, 3),
    Sketcher.Constraint("Vertical", 1, 3, 2, 3),
    Sketcher.Constraint("Vertical", 3, 3, 5, 3),
    Sketcher.Constraint("Diameter", 0, 5.2),
    Sketcher.Constraint("DistanceX", -1, 1, 0, 3, 5.0),
    Sketcher.Constraint("DistanceY", 0, 3, -1, 1, 30.0),
    Sketcher.Constraint("DistanceX", -1, 1, 1, 3, 45.0),
    Sketcher.Constraint("DistanceY", 1, 3, -1, 1, 5.0),
    Sketcher.Constraint("DistanceY", 2, 3, -1, 1, 55.0),
    Sketcher.Constraint("DistanceX", -1, 1, 3, 3, 125.0),
    Sketcher.Constraint("DistanceX", -1, 1, 4, 3, 165.0),
])
doc.recompute()
hole5 = body.newObject("PartDesign::Hole", "Hole004")
hole5.Profile = sketch15
hole5.ThreadType = "None"
hole5.Diameter = 5.2
hole5.DepthType = "Dimension"
hole5.Depth = 6
hole5.DrillPoint = "Angled"
hole5.DrillPointAngle = 118

doc.recompute()
